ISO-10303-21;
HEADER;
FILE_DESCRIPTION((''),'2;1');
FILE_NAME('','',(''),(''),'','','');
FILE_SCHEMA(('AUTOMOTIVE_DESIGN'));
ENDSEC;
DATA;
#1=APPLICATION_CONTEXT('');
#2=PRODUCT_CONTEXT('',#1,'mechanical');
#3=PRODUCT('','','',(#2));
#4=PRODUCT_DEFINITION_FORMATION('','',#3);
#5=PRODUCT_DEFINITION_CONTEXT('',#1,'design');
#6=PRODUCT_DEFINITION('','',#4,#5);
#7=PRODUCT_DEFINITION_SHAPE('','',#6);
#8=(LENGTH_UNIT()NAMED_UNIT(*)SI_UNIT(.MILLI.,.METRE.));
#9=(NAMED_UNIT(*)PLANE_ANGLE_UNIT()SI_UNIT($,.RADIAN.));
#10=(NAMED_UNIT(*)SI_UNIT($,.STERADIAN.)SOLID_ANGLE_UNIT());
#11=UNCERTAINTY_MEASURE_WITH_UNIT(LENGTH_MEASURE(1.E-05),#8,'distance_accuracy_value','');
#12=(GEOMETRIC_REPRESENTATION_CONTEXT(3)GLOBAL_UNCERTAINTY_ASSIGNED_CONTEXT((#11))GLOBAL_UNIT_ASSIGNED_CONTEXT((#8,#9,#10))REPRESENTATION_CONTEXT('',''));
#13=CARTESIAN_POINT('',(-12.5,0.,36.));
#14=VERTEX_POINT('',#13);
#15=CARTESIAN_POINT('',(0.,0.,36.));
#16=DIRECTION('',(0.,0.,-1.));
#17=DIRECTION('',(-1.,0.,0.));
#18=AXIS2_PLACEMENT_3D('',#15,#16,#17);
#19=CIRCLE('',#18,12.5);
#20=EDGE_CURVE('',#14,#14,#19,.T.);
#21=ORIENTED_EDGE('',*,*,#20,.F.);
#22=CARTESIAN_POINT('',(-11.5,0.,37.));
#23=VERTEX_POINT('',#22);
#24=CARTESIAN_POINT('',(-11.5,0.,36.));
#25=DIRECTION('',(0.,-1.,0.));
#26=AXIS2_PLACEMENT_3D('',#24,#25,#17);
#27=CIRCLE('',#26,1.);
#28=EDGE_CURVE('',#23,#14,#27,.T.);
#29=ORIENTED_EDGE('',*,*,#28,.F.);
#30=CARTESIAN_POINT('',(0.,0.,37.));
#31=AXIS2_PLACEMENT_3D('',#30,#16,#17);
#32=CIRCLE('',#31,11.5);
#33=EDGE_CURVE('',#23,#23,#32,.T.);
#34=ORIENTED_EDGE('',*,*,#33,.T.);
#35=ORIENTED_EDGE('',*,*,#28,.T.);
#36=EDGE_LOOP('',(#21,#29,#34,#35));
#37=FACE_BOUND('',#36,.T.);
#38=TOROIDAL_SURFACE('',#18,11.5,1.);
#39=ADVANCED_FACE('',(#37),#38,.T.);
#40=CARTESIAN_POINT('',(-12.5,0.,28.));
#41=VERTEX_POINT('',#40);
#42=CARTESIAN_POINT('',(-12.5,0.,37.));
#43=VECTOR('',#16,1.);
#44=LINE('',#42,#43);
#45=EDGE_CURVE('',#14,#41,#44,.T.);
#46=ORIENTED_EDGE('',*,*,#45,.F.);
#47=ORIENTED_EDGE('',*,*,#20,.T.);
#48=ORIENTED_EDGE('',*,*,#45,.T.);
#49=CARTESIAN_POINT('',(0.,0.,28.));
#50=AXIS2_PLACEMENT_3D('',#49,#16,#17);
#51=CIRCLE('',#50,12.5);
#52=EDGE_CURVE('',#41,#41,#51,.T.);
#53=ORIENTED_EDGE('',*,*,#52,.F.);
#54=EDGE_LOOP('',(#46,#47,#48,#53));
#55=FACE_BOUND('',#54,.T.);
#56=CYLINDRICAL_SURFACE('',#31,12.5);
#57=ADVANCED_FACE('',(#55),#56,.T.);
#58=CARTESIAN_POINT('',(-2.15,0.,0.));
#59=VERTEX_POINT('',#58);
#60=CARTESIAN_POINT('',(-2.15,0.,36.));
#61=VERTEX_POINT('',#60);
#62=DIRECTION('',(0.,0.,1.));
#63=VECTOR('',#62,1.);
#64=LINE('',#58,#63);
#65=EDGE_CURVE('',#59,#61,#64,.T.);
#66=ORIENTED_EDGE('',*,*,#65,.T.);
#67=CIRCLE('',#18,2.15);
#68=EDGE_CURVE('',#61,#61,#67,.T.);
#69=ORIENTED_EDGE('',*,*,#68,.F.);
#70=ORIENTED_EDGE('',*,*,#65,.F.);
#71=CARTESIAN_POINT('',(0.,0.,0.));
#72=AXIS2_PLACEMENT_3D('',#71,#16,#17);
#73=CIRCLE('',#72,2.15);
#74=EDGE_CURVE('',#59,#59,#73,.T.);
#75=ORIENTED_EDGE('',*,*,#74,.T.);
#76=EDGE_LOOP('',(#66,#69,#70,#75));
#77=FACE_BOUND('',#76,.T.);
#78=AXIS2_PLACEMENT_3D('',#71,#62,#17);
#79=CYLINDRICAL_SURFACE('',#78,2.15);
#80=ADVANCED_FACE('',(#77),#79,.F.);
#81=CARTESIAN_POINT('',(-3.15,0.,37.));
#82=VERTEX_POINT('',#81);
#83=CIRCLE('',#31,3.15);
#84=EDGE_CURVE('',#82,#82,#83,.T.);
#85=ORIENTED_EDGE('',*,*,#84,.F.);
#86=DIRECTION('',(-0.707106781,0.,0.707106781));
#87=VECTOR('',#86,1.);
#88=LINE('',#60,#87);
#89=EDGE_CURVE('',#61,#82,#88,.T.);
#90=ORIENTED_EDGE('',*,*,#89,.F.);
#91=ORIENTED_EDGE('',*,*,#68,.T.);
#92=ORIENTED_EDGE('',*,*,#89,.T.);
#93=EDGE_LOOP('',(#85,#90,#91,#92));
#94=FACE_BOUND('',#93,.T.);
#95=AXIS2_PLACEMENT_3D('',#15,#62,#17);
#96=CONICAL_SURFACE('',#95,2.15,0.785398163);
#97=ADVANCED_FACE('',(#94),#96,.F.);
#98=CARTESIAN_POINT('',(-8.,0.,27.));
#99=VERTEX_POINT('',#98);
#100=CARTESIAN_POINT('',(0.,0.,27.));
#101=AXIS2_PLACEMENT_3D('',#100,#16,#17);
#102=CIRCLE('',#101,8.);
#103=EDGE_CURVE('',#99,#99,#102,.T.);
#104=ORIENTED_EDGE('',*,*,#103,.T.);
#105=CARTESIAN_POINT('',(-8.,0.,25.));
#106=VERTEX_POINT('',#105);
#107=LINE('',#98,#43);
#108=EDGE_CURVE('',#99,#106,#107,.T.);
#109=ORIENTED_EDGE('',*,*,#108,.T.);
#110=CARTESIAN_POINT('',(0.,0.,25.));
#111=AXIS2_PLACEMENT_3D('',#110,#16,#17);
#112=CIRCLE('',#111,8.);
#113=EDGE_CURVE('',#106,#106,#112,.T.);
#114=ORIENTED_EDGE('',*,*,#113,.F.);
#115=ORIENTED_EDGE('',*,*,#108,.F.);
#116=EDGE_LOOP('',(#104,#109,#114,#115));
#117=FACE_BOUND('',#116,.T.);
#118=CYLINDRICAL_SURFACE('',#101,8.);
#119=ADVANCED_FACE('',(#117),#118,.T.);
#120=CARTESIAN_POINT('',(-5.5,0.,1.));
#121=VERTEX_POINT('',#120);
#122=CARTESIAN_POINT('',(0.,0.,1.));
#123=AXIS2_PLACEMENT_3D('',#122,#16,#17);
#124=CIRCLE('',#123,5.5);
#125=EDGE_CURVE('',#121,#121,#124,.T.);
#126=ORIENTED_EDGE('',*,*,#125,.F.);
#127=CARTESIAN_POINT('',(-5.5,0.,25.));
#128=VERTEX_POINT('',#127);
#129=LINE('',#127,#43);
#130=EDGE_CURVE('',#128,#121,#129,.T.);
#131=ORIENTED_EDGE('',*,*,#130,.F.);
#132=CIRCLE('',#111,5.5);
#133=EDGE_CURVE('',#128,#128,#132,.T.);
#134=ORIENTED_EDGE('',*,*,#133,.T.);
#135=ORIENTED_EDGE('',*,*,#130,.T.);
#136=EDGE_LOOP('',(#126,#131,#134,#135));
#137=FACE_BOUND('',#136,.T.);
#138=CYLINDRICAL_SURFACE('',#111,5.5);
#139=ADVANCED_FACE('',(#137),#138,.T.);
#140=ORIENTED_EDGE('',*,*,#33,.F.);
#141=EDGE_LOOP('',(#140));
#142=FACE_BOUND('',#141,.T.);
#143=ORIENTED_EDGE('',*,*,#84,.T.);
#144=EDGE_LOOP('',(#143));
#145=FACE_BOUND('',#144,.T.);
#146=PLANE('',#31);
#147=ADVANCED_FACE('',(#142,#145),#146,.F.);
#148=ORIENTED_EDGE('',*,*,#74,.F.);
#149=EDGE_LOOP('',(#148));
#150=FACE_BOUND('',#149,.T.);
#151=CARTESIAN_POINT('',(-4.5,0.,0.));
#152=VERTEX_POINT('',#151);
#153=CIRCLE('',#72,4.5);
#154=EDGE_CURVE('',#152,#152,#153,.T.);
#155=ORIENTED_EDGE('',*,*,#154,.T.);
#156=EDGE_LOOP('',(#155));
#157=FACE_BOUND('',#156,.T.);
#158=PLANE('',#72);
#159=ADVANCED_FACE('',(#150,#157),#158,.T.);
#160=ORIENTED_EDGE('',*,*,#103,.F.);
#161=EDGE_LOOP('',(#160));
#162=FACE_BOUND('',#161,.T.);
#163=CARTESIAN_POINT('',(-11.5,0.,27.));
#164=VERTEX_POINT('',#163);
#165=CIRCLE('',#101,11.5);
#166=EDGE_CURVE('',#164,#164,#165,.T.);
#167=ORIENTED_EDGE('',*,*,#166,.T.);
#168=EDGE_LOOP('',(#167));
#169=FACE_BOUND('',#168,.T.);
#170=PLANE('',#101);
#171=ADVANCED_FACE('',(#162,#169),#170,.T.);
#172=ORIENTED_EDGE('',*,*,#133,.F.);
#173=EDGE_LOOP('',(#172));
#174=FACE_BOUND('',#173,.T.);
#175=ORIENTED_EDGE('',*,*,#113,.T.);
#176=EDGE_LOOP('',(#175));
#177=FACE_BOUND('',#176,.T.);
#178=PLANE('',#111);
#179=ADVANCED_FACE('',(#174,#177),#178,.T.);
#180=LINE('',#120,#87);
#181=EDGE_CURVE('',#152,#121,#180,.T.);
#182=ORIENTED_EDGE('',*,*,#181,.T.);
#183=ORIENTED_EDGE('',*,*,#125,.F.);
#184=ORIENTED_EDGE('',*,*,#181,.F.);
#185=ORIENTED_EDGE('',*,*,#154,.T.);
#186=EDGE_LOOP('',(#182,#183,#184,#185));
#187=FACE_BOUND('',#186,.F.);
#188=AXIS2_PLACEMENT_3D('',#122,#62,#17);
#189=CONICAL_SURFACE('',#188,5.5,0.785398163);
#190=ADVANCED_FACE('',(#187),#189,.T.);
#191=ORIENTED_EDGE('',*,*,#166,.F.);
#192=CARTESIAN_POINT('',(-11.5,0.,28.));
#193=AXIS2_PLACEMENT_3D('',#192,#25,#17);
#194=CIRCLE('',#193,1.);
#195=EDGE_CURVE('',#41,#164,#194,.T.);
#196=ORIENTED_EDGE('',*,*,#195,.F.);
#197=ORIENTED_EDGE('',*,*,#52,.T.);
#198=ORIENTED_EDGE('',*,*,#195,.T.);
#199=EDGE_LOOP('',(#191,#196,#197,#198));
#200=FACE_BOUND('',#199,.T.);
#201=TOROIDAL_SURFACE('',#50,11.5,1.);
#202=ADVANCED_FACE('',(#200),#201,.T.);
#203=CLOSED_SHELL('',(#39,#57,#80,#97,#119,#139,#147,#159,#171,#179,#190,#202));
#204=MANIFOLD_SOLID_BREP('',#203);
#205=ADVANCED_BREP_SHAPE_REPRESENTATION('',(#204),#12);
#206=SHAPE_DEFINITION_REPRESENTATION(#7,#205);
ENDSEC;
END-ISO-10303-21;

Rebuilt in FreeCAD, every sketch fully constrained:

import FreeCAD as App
import Part
import Sketcher
from FreeCAD import Vector


def edges_at(feature, points):
    """Names of the edges that pass closest to the given points."""
    edges = feature.Shape.Edges
    near = lambda p: min(range(len(edges)), key=lambda i: edges[i].distToShape(Part.Vertex(*p))[0])
    return sorted({f"Edge{near(p) + 1}" for p in points})

doc = App.newDocument("Part")
body = doc.addObject("PartDesign::Body", "Body")

sketch1 = body.newObject("Sketcher::SketchObject", "Sketch")
sketch1.AttachmentSupport = (doc.getObject("XZ_Plane"), [""])
sketch1.MapMode = "FlatFace"
sketch1.addGeometry([
    Part.LineSegment(Vector(-5.5, 0, 0), Vector(-2.1, 0, 0)),
    Part.LineSegment(Vector(-2.1, 0, 0), Vector(-2.1, 37, 0)),
    Part.LineSegment(Vector(-2.1, 37, 0), Vector(-12.5, 37, 0)),
    Part.LineSegment(Vector(-12.5, 37, 0), Vector(-12.5, 27, 0)),
    Part.LineSegment(Vector(-12.5, 27, 0), Vector(-8, 27, 0)),
    Part.LineSegment(Vector(-8, 27, 0), Vector(-8, 25, 0)),
    Part.LineSegment(Vector(-8, 25, 0), Vector(-5.5, 25, 0)),
    Part.LineSegment(Vector(-5.5, 25, 0), Vector(-5.5, 0, 0)),
], False)
sketch1.addConstraint([
    Sketcher.Constraint("Coincident", 0, 2, 1, 1),
    Sketcher.Constraint("Coincident", 1, 2, 2, 1),
    Sketcher.Constraint("Coincident", 2, 2, 3, 1),
    Sketcher.Constraint("Coincident", 3, 2, 4, 1),
    Sketcher.Constraint("Coincident", 4, 2, 5, 1),
    Sketcher.Constraint("Coincident", 5, 2, 6, 1),
    Sketcher.Constraint("Coincident", 6, 2, 7, 1),
    Sketcher.Constraint("Coincident", 7, 2, 0, 1),
    Sketcher.Constraint("Horizontal", 0),
    Sketcher.Constraint("Vertical", 1),
    Sketcher.Constraint("Horizontal", 2),
    Sketcher.Constraint("Vertical", 3),
    Sketcher.Constraint("Horizontal", 4),
    Sketcher.Constraint("Vertical", 5),
    Sketcher.Constraint("Horizontal", 6),
    Sketcher.Constraint("Vertical", 7),
    Sketcher.Constraint("PointOnObject", 0, 2, -1),
    Sketcher.Constraint("DistanceY", 1, 1, 1, 2, 37.0),
    Sketcher.Constraint("DistanceY", 3, 2, 3, 1, 10.0),
    Sketcher.Constraint("DistanceY", 5, 2, 5, 1, 2.0),
    Sketcher.Constraint("DistanceX", 4, 1, 4, 2, 4.5),
    Sketcher.Constraint("DistanceX", 6, 1, 6, 2, 2.5),
    Sketcher.Constraint("DistanceX", 4, 2, -1, 1, 8.0),
    Sketcher.Constraint("DistanceX", 0, 1, 0, 2, 3.35),
])
revolution = body.newObject("PartDesign::Revolution", "Revolution")
revolution.Profile = sketch1
revolution.ReferenceAxis = (sketch1, ["V_Axis"])
revolution.Angle = 360
doc.recompute()

chamfer = body.newObject("PartDesign::Chamfer", "Chamfer")
chamfer.Base = (revolution, edges_at(revolution, [(5.5, 0, 0), (2.15, 0, 37)]))
chamfer.Size = 1
doc.recompute()

fillet = body.newObject("PartDesign::Fillet", "Fillet")
fillet.Base = (chamfer, edges_at(chamfer, [(12.5, 0, 37), (12.5, 0, 27)]))
fillet.Radius = 1

doc.recompute()
